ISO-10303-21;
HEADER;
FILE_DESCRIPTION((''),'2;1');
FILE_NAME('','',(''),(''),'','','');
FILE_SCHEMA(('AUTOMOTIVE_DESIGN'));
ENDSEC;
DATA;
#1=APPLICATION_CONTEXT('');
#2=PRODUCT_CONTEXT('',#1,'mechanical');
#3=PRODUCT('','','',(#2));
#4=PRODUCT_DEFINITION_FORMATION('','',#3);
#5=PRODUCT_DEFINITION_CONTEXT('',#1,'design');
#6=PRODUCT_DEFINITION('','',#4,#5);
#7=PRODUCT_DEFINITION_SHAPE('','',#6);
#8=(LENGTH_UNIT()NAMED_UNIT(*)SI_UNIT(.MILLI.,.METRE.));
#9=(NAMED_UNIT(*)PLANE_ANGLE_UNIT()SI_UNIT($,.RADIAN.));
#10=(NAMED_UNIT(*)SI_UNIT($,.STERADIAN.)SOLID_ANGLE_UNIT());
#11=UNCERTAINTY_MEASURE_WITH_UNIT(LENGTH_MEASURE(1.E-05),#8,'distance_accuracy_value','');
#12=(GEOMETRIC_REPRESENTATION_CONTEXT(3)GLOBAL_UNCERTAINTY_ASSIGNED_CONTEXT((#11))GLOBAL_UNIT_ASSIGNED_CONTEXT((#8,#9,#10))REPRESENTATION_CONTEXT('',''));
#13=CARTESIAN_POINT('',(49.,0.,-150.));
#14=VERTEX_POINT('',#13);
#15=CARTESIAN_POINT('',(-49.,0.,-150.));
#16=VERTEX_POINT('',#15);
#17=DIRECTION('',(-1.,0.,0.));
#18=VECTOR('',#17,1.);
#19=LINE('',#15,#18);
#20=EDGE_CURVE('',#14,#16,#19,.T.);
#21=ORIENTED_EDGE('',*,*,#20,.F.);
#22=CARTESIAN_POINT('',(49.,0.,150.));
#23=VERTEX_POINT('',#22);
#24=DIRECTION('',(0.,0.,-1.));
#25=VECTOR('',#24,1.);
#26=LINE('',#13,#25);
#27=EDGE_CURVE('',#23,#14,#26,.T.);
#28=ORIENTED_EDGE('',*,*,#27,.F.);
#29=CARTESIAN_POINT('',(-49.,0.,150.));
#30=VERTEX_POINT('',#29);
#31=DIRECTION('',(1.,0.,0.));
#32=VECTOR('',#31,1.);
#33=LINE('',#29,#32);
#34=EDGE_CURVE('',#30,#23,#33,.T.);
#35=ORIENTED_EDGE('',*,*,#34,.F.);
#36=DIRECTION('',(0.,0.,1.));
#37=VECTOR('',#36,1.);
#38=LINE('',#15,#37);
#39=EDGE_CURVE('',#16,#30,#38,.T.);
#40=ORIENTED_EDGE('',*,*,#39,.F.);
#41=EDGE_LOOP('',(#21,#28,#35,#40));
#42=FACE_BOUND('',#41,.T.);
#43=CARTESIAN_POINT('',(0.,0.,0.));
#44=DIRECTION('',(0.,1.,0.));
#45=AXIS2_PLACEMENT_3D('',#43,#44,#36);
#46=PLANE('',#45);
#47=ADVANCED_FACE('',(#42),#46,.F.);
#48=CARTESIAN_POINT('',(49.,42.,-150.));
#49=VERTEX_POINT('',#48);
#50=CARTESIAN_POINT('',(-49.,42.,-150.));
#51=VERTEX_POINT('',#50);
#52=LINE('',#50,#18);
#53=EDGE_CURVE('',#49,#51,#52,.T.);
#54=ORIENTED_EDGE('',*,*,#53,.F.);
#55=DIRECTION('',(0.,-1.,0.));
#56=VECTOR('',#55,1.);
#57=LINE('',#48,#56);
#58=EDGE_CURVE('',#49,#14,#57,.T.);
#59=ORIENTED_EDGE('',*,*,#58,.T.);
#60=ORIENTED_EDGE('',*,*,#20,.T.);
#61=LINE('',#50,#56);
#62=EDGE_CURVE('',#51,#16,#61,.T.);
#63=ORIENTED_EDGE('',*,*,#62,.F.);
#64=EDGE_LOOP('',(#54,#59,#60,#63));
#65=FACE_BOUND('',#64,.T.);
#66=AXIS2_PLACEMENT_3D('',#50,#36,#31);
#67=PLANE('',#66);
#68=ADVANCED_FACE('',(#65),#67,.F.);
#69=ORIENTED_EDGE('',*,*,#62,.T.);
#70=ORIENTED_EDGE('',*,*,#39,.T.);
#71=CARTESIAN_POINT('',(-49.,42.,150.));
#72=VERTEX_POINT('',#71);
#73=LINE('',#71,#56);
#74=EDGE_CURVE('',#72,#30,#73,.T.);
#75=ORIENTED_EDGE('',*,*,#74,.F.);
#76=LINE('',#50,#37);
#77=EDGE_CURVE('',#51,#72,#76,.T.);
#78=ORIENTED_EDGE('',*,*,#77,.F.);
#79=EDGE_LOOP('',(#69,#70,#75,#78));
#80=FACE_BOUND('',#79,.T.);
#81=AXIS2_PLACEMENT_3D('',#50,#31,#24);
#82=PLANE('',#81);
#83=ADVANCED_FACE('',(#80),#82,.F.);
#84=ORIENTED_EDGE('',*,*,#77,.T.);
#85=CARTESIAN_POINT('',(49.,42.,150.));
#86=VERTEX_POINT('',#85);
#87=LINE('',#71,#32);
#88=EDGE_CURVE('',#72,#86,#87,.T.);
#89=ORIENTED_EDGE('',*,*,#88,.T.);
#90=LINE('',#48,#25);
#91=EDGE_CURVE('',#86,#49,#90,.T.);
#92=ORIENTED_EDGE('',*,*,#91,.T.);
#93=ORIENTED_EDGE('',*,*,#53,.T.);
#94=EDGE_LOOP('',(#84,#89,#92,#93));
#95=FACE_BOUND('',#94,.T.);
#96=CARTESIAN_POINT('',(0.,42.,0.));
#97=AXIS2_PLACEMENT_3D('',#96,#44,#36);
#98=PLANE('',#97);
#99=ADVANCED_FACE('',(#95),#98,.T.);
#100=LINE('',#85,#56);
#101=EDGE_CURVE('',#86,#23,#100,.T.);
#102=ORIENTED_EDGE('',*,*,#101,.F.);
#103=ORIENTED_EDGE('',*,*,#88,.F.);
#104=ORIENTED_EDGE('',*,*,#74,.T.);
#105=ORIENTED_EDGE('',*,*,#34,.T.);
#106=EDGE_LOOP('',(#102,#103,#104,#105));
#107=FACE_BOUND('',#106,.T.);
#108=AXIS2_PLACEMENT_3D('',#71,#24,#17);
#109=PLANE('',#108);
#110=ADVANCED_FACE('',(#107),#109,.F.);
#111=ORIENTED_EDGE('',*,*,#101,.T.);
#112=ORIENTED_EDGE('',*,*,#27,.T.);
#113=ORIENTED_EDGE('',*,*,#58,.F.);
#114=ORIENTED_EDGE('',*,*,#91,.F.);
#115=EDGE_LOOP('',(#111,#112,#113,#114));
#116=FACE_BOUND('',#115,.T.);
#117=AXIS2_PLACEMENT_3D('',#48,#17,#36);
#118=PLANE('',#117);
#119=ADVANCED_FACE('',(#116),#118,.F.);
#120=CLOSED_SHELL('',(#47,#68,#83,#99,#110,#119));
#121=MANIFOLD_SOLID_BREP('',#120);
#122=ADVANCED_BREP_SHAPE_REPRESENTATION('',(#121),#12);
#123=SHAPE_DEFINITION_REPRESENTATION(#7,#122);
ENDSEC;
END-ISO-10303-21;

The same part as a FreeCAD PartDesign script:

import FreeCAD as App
import Part
import Sketcher
from FreeCAD import Vector
Q = App.Units.Quantity


def add_polygon(sketch, points):
    """Adds a closed chain of lines whose ends are joined by coincident constraints."""
    first, n = sketch.GeometryCount, len(points)
    for a, b in zip(points, points[1:] + points[:1]):
        sketch.addGeometry(Part.LineSegment(App.Vector(*a, 0), App.Vector(*b, 0)), False)
    for i in range(n):
        sketch.addConstraint(Sketcher.Constraint("Coincident", first + i, 2, first + (i + 1) % n, 1))

doc = App.newDocument("Part")
body = doc.addObject("PartDesign::Body", "Body")

sketch1 = doc.addObject("Sketcher::SketchObject", "Sketch")
body.addObject(sketch1)
sketch1.AttachmentSupport = (doc.XZ_Plane, [""])
sketch1.MapMode = "FlatFace"
add_polygon(sketch1, [(-49, -150), (-49, 150), (49, 150), (49, -150)])
sketch1.addConstraint(Sketcher.Constraint("Vertical", 0))
sketch1.addConstraint(Sketcher.Constraint("Horizontal", 1))
sketch1.addConstraint(Sketcher.Constraint("Vertical", 2))
sketch1.addConstraint(Sketcher.Constraint("Horizontal", 3))
sketch1.addConstraint(Sketcher.Constraint("Symmetric", 0, 2, 2, 2, -1, 1))
sketch1.addConstraint(Sketcher.Constraint("DistanceX", 1, 1, 1, 2, Q("98 mm")))
sketch1.addConstraint(Sketcher.Constraint("DistanceY", 0, 1, 0, 2, Q("300 mm")))
pad1 = doc.addObject("PartDesign::Pad", "Pad")
body.addObject(pad1)
pad1.Profile = sketch1
pad1.Length = 42
pad1.Reversed = True

doc.recompute()
